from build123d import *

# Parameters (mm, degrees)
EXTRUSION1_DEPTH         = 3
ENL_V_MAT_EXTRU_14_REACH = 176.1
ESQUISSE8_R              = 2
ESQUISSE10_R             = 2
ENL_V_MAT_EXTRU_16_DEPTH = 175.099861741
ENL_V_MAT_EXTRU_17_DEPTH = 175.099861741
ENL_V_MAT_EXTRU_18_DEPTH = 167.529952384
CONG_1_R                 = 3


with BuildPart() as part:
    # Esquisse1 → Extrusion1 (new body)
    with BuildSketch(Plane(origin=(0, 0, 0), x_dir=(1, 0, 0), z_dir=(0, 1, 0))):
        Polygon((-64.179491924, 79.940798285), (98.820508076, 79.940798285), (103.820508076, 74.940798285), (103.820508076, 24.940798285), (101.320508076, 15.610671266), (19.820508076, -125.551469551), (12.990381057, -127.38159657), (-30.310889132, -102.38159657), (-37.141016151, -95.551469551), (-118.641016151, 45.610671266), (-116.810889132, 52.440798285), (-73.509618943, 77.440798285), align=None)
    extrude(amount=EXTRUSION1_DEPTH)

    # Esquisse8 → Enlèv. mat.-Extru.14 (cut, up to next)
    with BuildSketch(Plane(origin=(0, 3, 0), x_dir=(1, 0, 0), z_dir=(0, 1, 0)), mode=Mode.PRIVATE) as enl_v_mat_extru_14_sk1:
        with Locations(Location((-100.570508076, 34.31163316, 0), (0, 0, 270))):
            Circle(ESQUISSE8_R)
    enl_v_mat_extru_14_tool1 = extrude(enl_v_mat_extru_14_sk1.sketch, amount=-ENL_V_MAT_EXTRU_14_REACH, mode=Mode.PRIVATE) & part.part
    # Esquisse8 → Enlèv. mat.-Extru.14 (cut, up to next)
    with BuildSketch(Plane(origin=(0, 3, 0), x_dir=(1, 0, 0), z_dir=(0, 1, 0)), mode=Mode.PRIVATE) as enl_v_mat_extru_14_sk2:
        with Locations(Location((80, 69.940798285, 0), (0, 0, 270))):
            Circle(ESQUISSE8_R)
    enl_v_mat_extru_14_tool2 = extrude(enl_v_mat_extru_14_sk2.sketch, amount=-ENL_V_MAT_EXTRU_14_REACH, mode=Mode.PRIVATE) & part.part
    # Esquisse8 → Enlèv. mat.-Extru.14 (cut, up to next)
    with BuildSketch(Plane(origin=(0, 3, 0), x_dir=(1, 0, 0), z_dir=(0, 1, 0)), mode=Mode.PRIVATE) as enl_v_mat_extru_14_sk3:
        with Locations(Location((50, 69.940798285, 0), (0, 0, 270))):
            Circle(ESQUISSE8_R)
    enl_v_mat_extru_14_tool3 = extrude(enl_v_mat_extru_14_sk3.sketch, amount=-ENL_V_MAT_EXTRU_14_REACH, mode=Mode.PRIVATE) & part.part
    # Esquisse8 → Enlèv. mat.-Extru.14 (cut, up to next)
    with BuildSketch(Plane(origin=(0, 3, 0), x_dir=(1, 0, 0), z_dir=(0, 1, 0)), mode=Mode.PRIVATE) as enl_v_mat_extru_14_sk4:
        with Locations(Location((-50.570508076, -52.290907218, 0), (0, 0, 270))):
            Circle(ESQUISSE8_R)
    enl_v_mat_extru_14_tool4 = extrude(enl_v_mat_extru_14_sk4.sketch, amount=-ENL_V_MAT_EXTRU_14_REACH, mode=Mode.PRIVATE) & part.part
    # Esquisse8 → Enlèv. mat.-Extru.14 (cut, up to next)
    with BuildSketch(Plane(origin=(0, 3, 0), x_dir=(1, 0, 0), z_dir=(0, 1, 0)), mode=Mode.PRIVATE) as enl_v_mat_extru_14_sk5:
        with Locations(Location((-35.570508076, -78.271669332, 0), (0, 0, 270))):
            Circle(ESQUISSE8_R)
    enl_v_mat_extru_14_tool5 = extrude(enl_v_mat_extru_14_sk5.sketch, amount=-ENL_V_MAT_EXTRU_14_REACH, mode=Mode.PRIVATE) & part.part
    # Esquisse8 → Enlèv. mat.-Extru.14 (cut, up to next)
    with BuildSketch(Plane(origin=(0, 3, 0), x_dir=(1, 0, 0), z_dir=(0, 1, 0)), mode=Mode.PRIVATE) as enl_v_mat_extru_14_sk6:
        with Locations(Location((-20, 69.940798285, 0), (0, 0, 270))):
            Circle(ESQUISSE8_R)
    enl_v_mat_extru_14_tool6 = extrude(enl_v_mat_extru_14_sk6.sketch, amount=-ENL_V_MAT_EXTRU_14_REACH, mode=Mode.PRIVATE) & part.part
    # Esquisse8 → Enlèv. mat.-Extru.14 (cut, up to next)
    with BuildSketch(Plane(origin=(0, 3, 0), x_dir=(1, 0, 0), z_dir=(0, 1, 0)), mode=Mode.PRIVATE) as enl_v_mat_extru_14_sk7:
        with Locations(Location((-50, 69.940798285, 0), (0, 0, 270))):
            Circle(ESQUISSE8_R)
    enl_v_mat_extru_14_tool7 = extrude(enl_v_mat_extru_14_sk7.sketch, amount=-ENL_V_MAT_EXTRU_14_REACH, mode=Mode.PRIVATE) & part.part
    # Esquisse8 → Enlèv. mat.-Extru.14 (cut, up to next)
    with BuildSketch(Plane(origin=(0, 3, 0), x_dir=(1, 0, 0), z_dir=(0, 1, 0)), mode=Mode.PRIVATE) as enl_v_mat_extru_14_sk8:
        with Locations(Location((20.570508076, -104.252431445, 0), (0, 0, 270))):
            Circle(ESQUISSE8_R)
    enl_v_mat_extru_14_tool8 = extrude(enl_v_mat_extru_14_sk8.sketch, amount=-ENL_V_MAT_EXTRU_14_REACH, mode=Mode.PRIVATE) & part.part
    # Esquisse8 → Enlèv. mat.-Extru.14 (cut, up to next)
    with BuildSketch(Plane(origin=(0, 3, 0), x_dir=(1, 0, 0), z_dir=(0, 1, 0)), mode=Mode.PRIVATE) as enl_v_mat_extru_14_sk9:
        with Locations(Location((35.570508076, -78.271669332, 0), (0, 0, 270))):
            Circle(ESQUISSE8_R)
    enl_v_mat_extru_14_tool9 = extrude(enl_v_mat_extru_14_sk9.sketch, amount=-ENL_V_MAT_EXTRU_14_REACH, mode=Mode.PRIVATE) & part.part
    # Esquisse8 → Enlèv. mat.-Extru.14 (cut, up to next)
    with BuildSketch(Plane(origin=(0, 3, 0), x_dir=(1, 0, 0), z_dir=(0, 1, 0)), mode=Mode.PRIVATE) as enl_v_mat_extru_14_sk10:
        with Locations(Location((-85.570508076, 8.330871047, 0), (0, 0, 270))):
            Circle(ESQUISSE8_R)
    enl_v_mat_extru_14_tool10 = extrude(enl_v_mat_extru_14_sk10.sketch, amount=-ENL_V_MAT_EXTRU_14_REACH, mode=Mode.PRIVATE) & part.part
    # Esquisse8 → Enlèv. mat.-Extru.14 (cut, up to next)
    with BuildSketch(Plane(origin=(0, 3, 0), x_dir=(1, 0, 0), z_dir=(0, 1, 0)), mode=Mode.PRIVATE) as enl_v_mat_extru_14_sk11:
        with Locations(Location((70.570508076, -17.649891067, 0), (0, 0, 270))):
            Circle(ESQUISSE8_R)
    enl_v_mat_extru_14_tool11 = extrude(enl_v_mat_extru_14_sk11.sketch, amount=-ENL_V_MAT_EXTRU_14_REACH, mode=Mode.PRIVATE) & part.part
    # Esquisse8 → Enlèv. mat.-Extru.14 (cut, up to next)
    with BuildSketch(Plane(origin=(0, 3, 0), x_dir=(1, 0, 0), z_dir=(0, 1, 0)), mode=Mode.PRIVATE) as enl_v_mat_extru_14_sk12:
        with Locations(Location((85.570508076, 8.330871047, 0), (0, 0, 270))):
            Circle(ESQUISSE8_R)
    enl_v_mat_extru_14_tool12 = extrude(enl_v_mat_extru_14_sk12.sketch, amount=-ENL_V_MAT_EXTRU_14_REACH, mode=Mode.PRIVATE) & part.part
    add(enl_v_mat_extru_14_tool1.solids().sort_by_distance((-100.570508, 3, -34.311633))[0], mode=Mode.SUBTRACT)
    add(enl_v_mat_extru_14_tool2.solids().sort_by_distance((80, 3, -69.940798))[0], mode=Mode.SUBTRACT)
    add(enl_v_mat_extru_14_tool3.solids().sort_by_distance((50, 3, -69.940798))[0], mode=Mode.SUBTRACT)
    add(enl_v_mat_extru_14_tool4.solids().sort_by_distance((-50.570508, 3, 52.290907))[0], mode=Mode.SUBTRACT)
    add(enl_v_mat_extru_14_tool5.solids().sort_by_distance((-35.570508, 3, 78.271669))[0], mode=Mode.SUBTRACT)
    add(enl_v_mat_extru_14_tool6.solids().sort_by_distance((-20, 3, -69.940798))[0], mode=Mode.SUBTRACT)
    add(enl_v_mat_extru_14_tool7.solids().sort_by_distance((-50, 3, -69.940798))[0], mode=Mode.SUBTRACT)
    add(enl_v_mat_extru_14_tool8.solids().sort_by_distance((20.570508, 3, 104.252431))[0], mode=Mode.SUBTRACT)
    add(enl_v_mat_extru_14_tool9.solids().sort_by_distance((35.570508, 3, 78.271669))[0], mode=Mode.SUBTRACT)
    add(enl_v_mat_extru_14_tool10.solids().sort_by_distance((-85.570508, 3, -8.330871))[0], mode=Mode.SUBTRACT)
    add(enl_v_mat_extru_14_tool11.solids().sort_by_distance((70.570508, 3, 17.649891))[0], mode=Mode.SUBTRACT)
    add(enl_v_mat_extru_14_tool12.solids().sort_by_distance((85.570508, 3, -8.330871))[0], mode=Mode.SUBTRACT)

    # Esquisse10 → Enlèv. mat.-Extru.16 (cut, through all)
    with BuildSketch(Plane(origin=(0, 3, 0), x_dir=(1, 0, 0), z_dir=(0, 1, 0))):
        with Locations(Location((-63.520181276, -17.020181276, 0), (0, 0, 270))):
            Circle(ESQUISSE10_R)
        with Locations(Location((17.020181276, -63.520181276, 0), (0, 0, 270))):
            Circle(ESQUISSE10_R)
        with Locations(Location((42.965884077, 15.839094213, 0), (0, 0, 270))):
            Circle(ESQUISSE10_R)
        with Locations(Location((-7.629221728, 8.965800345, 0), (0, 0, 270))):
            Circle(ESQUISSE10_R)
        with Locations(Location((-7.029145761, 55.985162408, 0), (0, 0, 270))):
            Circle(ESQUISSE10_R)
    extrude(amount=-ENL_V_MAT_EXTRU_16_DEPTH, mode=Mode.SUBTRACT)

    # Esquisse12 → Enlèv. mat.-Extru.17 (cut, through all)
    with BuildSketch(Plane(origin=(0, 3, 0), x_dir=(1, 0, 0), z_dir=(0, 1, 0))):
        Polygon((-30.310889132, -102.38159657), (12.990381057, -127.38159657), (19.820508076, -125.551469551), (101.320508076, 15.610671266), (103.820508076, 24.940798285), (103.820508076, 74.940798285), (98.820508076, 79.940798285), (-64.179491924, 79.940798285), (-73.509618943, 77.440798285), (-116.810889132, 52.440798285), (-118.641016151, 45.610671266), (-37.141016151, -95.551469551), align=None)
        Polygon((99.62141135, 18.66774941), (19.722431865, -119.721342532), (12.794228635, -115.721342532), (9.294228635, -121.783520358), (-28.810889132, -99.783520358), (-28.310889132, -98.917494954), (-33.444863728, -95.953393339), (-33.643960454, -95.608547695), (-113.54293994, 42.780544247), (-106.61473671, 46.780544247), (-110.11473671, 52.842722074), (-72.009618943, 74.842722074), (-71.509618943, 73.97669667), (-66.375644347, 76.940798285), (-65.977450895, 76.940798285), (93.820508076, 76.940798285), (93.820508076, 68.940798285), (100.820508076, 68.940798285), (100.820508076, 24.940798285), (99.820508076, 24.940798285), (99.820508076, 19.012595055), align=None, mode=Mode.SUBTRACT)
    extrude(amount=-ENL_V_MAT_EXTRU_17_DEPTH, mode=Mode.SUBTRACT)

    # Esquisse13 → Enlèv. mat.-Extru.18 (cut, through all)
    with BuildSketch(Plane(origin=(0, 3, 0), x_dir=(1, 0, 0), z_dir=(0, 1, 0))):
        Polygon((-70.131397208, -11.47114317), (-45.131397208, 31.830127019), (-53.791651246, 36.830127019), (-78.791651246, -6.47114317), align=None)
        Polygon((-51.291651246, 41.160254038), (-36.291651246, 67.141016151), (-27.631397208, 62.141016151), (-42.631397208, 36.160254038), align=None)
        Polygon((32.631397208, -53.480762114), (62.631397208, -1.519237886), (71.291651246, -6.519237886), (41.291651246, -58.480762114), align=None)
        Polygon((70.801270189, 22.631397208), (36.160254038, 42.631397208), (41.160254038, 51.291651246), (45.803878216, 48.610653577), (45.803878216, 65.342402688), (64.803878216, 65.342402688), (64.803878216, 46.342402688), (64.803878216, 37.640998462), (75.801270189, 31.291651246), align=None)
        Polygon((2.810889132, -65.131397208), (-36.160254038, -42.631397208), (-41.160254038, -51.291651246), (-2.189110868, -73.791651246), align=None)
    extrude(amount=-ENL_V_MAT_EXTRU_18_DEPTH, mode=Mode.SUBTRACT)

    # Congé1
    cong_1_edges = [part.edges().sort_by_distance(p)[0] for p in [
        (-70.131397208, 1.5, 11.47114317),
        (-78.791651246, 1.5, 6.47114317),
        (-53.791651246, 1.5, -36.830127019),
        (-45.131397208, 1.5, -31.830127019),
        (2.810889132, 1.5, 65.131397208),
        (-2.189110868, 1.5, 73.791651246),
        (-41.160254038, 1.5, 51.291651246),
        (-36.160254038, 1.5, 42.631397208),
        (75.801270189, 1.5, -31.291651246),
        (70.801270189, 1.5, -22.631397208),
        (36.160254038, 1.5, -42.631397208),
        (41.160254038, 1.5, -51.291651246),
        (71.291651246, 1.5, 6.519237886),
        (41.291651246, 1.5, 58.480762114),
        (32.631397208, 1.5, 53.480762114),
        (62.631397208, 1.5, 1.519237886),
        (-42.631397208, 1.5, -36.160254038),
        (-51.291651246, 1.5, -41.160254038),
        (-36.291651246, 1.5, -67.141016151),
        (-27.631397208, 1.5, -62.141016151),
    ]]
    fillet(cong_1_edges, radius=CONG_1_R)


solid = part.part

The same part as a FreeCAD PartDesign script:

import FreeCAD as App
import Part
import Sketcher

V = App.Vector
Q = App.Units.Quantity


def edges_at(feature, points):
    """Names of the edges that pass closest to the given points."""
    edges = feature.Shape.Edges
    near = lambda p: min(range(len(edges)), key=lambda i: edges[i].distToShape(Part.Vertex(*p))[0])
    return sorted({f"Edge{near(p) + 1}" for p in points})

doc = App.newDocument("Part")
body = doc.addObject("PartDesign::Body", "Body")

# Sketch on XZ plane
sketch1 = doc.addObject("Sketcher::SketchObject", "Sketch")
body.addObject(sketch1)
sketch1.AttachmentSupport = (doc.XZ_Plane, [""])
sketch1.MapMode = "FlatFace"
sketch1.addGeometry([
    Part.LineSegment(V(99, -80, 0), V(-64, -80, 0)),  # 0
    Part.LineSegment(V(-64, -80, 0), V(-74, -77, 0)),  # 1
    Part.LineSegment(V(-74, -77, 0), V(-117, -52, 0)),  # 2
    Part.LineSegment(V(-117, -52, 0), V(-119, -46, 0)),  # 3
    Part.LineSegment(V(-119, -46, 0), V(-37, 96, 0)),  # 4
    Part.LineSegment(V(-37, 96, 0), V(-30, 102, 0)),  # 5
    Part.LineSegment(V(-30, 102, 0), V(13, 127, 0)),  # 6
    Part.LineSegment(V(13, 127, 0), V(20, 126, 0)),  # 7
    Part.LineSegment(V(20, 126, 0), V(101, -16, 0)),  # 8
    Part.LineSegment(V(101, -16, 0), V(104, -25, 0)),  # 9
    Part.LineSegment(V(104, -25, 0), V(104, -75, 0)),  # 10
    Part.LineSegment(V(104, -75, 0), V(99, -80, 0)),  # 11
], False)
sketch1.addConstraint([
    Sketcher.Constraint("Coincident", 0, 2, 1, 1),
    Sketcher.Constraint("Coincident", 1, 2, 2, 1),
    Sketcher.Constraint("Coincident", 2, 2, 3, 1),
    Sketcher.Constraint("Coincident", 3, 2, 4, 1),
    Sketcher.Constraint("Coincident", 4, 2, 5, 1),
    Sketcher.Constraint("Coincident", 5, 2, 6, 1),
    Sketcher.Constraint("Coincident", 6, 2, 7, 1),
    Sketcher.Constraint("Coincident", 7, 2, 8, 1),
    Sketcher.Constraint("Coincident", 8, 2, 9, 1),
    Sketcher.Constraint("Coincident", 9, 2, 10, 1),
    Sketcher.Constraint("Coincident", 10, 2, 11, 1),
    Sketcher.Constraint("Coincident", 11, 2, 0, 1),
    Sketcher.Constraint("Horizontal", 0),
    Sketcher.Constraint("Vertical", 10),
    Sketcher.Constraint("Perpendicular", 2, 4),
    Sketcher.Constraint("Parallel", 1, 7),
    Sketcher.Constraint("Perpendicular", 6, 8),
    Sketcher.Constraint("Parallel", 3, 9),
    Sketcher.Constraint("Parallel", 5, 11),
    Sketcher.Constraint("Equal", 1, 5),
    Sketcher.Constraint("Equal", 2, 6),
    Sketcher.Constraint("Equal", 3, 7),
    Sketcher.Constraint("Equal", 4, 8),
    Sketcher.Constraint("Equal", 5, 9),
    Sketcher.Constraint("Equal", 7, 11),
    Sketcher.Constraint("DistanceX", 0, 2, 0, 1, Q("163 mm")),
    Sketcher.Constraint("DistanceY", 10, 2, 10, 1, Q("50 mm")),
    Sketcher.Constraint("Angle", 1, Q("165 deg")),
    Sketcher.Constraint("Angle", 2, Q("150 deg")),
    Sketcher.Constraint("Angle", 3, Q("105 deg")),
    Sketcher.Constraint("Angle", 5, Q("45 deg")),
    Sketcher.Constraint("Angle", 6, Q("30 deg")),
    Sketcher.Constraint("DistanceY", 4, 2, 7, 2, Q("30 mm")),
    Sketcher.Constraint("DistanceX", 0, 2, 7, 2, Q("84 mm")),
    Sketcher.Constraint("DistanceY", 0, 2, -1, 1, Q("79.940798 mm")),
    Sketcher.Constraint("DistanceX", 0, 2, -1, 1, Q("64.179492 mm")),
])
pad1 = doc.addObject("PartDesign::Pad", "Pad")
body.addObject(pad1)
pad1.Profile = sketch1
pad1.Length = 3
pad1.Reversed = True

# Sketch on XZ plane
sketch2 = doc.addObject("Sketcher::SketchObject", "Sketch001")
body.addObject(sketch2)
sketch2.AttachmentSupport = (doc.XZ_Plane, [""])
sketch2.MapMode = "FlatFace"
sketch2.AttachmentOffset = App.Placement(V(0, 0, -3), App.Rotation())
sketch2.addGeometry(Part.Circle(V(-100.6, -34.3, 0), V(0, 0, 1), 2), False)
sketch2.addConstraint([
    Sketcher.Constraint("Diameter", 0, Q("4 mm")),
    Sketcher.Constraint("DistanceX", 0, 3, -1, 1, Q("100.570508 mm")),
    Sketcher.Constraint("DistanceY", 0, 3, -1, 1, Q("34.311633 mm")),
])
pocket1 = doc.addObject("PartDesign::Pocket", "Pocket")
body.addObject(pocket1)
pocket1.Profile = sketch2
pocket1.Type = "UpToFirst"
pocket1.Reversed = True

# Sketch on XZ plane
sketch3 = doc.addObject("Sketcher::SketchObject", "Sketch002")
body.addObject(sketch3)
sketch3.AttachmentSupport = (doc.XZ_Plane, [""])
sketch3.MapMode = "FlatFace"
sketch3.AttachmentOffset = App.Placement(V(0, 0, -3), App.Rotation())
sketch3.addGeometry(Part.Circle(V(80, -69.9, 0), V(0, 0, 1), 2), False)
sketch3.addConstraint([
    Sketcher.Constraint("Diameter", 0, Q("4 mm")),
    Sketcher.Constraint("DistanceX", -1, 1, 0, 3, Q("80 mm")),
    Sketcher.Constraint("DistanceY", 0, 3, -1, 1, Q("69.940798 mm")),
])
pocket2 = doc.addObject("PartDesign::Pocket", "Pocket001")
body.addObject(pocket2)
pocket2.Profile = sketch3
pocket2.Type = "UpToFirst"
pocket2.Reversed = True

# Sketch on XZ plane
sketch4 = doc.addObject("Sketcher::SketchObject", "Sketch003")
body.addObject(sketch4)
sketch4.AttachmentSupport = (doc.XZ_Plane, [""])
sketch4.MapMode = "FlatFace"
sketch4.AttachmentOffset = App.Placement(V(0, 0, -3), App.Rotation())
sketch4.addGeometry(Part.Circle(V(50, -69.9, 0), V(0, 0, 1), 2), False)
sketch4.addConstraint([
    Sketcher.Constraint("Diameter", 0, Q("4 mm")),
    Sketcher.Constraint("DistanceX", -1, 1, 0, 3, Q("50 mm")),
    Sketcher.Constraint("DistanceY", 0, 3, -1, 1, Q("69.940798 mm")),
])
pocket3 = doc.addObject("PartDesign::Pocket", "Pocket002")
body.addObject(pocket3)
pocket3.Profile = sketch4
pocket3.Type = "UpToFirst"
pocket3.Reversed = True

# Sketch on XZ plane
sketch5 = doc.addObject("Sketcher::SketchObject", "Sketch004")
body.addObject(sketch5)
sketch5.AttachmentSupport = (doc.XZ_Plane, [""])
sketch5.MapMode = "FlatFace"
sketch5.AttachmentOffset = App.Placement(V(0, 0, -3), App.Rotation())
sketch5.addGeometry(Part.Circle(V(-50.6, 52.3, 0), V(0, 0, 1), 2), False)
sketch5.addConstraint([
    Sketcher.Constraint("Diameter", 0, Q("4 mm")),
    Sketcher.Constraint("DistanceX", 0, 3, -1, 1, Q("50.570508 mm")),
    Sketcher.Constraint("DistanceY", -1, 1, 0, 3, Q("52.290907 mm")),
])
pocket4 = doc.addObject("PartDesign::Pocket", "Pocket003")
body.addObject(pocket4)
pocket4.Profile = sketch5
pocket4.Type = "UpToFirst"
pocket4.Reversed = True

# Sketch on XZ plane
sketch6 = doc.addObject("Sketcher::SketchObject", "Sketch005")
body.addObject(sketch6)
sketch6.AttachmentSupport = (doc.XZ_Plane, [""])
sketch6.MapMode = "FlatFace"
sketch6.AttachmentOffset = App.Placement(V(0, 0, -3), App.Rotation())
sketch6.addGeometry(Part.Circle(V(-35.6, 78.3, 0), V(0, 0, 1), 2), False)
sketch6.addConstraint([
    Sketcher.Constraint("Diameter", 0, Q("4 mm")),
    Sketcher.Constraint("DistanceX", 0, 3, -1, 1, Q("35.570508 mm")),
    Sketcher.Constraint("DistanceY", -1, 1, 0, 3, Q("78.271669 mm")),
])
pocket5 = doc.addObject("PartDesign::Pocket", "Pocket004")
body.addObject(pocket5)
pocket5.Profile = sketch6
pocket5.Type = "UpToFirst"
pocket5.Reversed = True

# Sketch on XZ plane
sketch7 = doc.addObject("Sketcher::SketchObject", "Sketch006")
body.addObject(sketch7)
sketch7.AttachmentSupport = (doc.XZ_Plane, [""])
sketch7.MapMode = "FlatFace"
sketch7.AttachmentOffset = App.Placement(V(0, 0, -3), App.Rotation())
sketch7.addGeometry(Part.Circle(V(-20, -69.9, 0), V(0, 0, 1), 2), False)
sketch7.addConstraint([
    Sketcher.Constraint("Diameter", 0, Q("4 mm")),
    Sketcher.Constraint("DistanceX", 0, 3, -1, 1, Q("20 mm")),
    Sketcher.Constraint("DistanceY", 0, 3, -1, 1, Q("69.940798 mm")),
])
pocket6 = doc.addObject("PartDesign::Pocket", "Pocket005")
body.addObject(pocket6)
pocket6.Profile = sketch7
pocket6.Type = "UpToFirst"
pocket6.Reversed = True

# Sketch on XZ plane
sketch8 = doc.addObject("Sketcher::SketchObject", "Sketch007")
body.addObject(sketch8)
sketch8.AttachmentSupport = (doc.XZ_Plane, [""])
sketch8.MapMode = "FlatFace"
sketch8.AttachmentOffset = App.Placement(V(0, 0, -3), App.Rotation())
sketch8.addGeometry(Part.Circle(V(-50, -69.9, 0), V(0, 0, 1), 2), False)
sketch8.addConstraint([
    Sketcher.Constraint("Diameter", 0, Q("4 mm")),
    Sketcher.Constraint("DistanceX", 0, 3, -1, 1, Q("50 mm")),
    Sketcher.Constraint("DistanceY", 0, 3, -1, 1, Q("69.940798 mm")),
])
pocket7 = doc.addObject("PartDesign::Pocket", "Pocket006")
body.addObject(pocket7)
pocket7.Profile = sketch8
pocket7.Type = "UpToFirst"
pocket7.Reversed = True

# Sketch on XZ plane
sketch9 = doc.addObject("Sketcher::SketchObject", "Sketch008")
body.addObject(sketch9)
sketch9.AttachmentSupport = (doc.XZ_Plane, [""])
sketch9.MapMode = "FlatFace"
sketch9.AttachmentOffset = App.Placement(V(0, 0, -3), App.Rotation())
sketch9.addGeometry(Part.Circle(V(20.6, 104.3, 0), V(0, 0, 1), 2), False)
sketch9.addConstraint([
    Sketcher.Constraint("Diameter", 0, Q("4 mm")),
    Sketcher.Constraint("DistanceX", -1, 1, 0, 3, Q("20.570508 mm")),
    Sketcher.Constraint("DistanceY", -1, 1, 0, 3, Q("104.252431 mm")),
])
pocket8 = doc.addObject("PartDesign::Pocket", "Pocket007")
body.addObject(pocket8)
pocket8.Profile = sketch9
pocket8.Type = "UpToFirst"
pocket8.Reversed = True

# Sketch on XZ plane
sketch10 = doc.addObject("Sketcher::SketchObject", "Sketch009")
body.addObject(sketch10)
sketch10.AttachmentSupport = (doc.XZ_Plane, [""])
sketch10.MapMode = "FlatFace"
sketch10.AttachmentOffset = App.Placement(V(0, 0, -3), App.Rotation())
sketch10.addGeometry(Part.Circle(V(35.6, 78.3, 0), V(0, 0, 1), 2), False)
sketch10.addConstraint([
    Sketcher.Constraint("Diameter", 0, Q("4 mm")),
    Sketcher.Constraint("DistanceX", -1, 1, 0, 3, Q("35.570508 mm")),
    Sketcher.Constraint("DistanceY", -1, 1, 0, 3, Q("78.271669 mm")),
])
pocket9 = doc.addObject("PartDesign::Pocket", "Pocket008")
body.addObject(pocket9)
pocket9.Profile = sketch10
pocket9.Type = "UpToFirst"
pocket9.Reversed = True

# Sketch on XZ plane
sketch11 = doc.addObject("Sketcher::SketchObject", "Sketch010")
body.addObject(sketch11)
sketch11.AttachmentSupport = (doc.XZ_Plane, [""])
sketch11.MapMode = "FlatFace"
sketch11.AttachmentOffset = App.Placement(V(0, 0, -3), App.Rotation())
sketch11.addGeometry(Part.Circle(V(-85.6, -8.3, 0), V(0, 0, 1), 2), False)
sketch11.addConstraint([
    Sketcher.Constraint("Diameter", 0, Q("4 mm")),
    Sketcher.Constraint("DistanceX", 0, 3, -1, 1, Q("85.570508 mm")),
    Sketcher.Constraint("DistanceY", 0, 3, -1, 1, Q("8.330871 mm")),
])
pocket10 = doc.addObject("PartDesign::Pocket", "Pocket009")
body.addObject(pocket10)
pocket10.Profile = sketch11
pocket10.Type = "UpToFirst"
pocket10.Reversed = True

# Sketch on XZ plane
sketch12 = doc.addObject("Sketcher::SketchObject", "Sketch011")
body.addObject(sketch12)
sketch12.AttachmentSupport = (doc.XZ_Plane, [""])
sketch12.MapMode = "FlatFace"
sketch12.AttachmentOffset = App.Placement(V(0, 0, -3), App.Rotation())
sketch12.addGeometry(Part.Circle(V(70.6, 17.6, 0), V(0, 0, 1), 2), False)
sketch12.addConstraint([
    Sketcher.Constraint("Diameter", 0, Q("4 mm")),
    Sketcher.Constraint("DistanceX", -1, 1, 0, 3, Q("70.570508 mm")),
    Sketcher.Constraint("DistanceY", -1, 1, 0, 3, Q("17.649891 mm")),
])
pocket11 = doc.addObject("PartDesign::Pocket", "Pocket010")
body.addObject(pocket11)
pocket11.Profile = sketch12
pocket11.Type = "UpToFirst"
pocket11.Reversed = True

# Sketch on XZ plane
sketch13 = doc.addObject("Sketcher::SketchObject", "Sketch012")
body.addObject(sketch13)
sketch13.AttachmentSupport = (doc.XZ_Plane, [""])
sketch13.MapMode = "FlatFace"
sketch13.AttachmentOffset = App.Placement(V(0, 0, -3), App.Rotation())
sketch13.addGeometry(Part.Circle(V(85.6, -8.3, 0), V(0, 0, 1), 2), False)
sketch13.addConstraint([
    Sketcher.Constraint("Diameter", 0, Q("4 mm")),
    Sketcher.Constraint("DistanceX", -1, 1, 0, 3, Q("85.570508 mm")),
    Sketcher.Constraint("DistanceY", 0, 3, -1, 1, Q("8.330871 mm")),
])
pocket12 = doc.addObject("PartDesign::Pocket", "Pocket011")
body.addObject(pocket12)
pocket12.Profile = sketch13
pocket12.Type = "UpToFirst"
pocket12.Reversed = True

# Sketch on XZ plane
sketch14 = doc.addObject("Sketcher::SketchObject", "Sketch013")
body.addObject(sketch14)
sketch14.AttachmentSupport = (doc.XZ_Plane, [""])
sketch14.MapMode = "FlatFace"
sketch14.AttachmentOffset = App.Placement(V(0, 0, -3), App.Rotation())
sketch14.addGeometry([
    Part.Circle(V(-63.5, 17, 0), V(0, 0, 1), 2),  # 0
    Part.Circle(V(17, 63.5, 0), V(0, 0, 1), 2),  # 1
    Part.Circle(V(43, -15.8, 0), V(0, 0, 1), 2),  # 2
    Part.Circle(V(-7.6, -9, 0), V(0, 0, 1), 2),  # 3
    Part.Circle(V(-7, -56, 0), V(0, 0, 1), 2),  # 4
], False)
sketch14.addConstraint([
    Sketcher.Constraint("Equal", 0, 1),
    Sketcher.Constraint("Equal", 1, 2),
    Sketcher.Constraint("Equal", 2, 3),
    Sketcher.Constraint("Equal", 3, 4),
    Sketcher.Constraint("Diameter", 0, Q("4 mm")),
    Sketcher.Constraint("DistanceY", 0, 3, 1, 3, Q("46.5 mm")),
    Sketcher.Constraint("DistanceY", 3, 3, -1, 1, Q("8.9658 mm")),
    Sketcher.Constraint("DistanceX", 0, 3, -1, 1, Q("63.520181 mm")),
    Sketcher.Constraint("DistanceY", -1, 1, 0, 3, Q("17.020181 mm")),
    Sketcher.Constraint("DistanceX", -1, 1, 1, 3, Q("17.020181 mm")),
    Sketcher.Constraint("DistanceX", 3, 3, -1, 1, Q("7.629222 mm")),
    Sketcher.Constraint("DistanceX", 4, 3, 2, 3, Q("49.99503 mm")),
    Sketcher.Constraint("DistanceY", 4, 3, 2, 3, Q("40.146068 mm")),
    Sketcher.Constraint("DistanceX", -1, 1, 2, 3, Q("42.965884 mm")),
    Sketcher.Constraint("DistanceY", 2, 3, -1, 1, Q("15.839094 mm")),
])
pocket13 = doc.addObject("PartDesign::Pocket", "Pocket012")
body.addObject(pocket13)
pocket13.Profile = sketch14
pocket13.Type = "ThroughAll"
pocket13.Reversed = True

# Sketch on XZ plane
sketch15 = doc.addObject("Sketcher::SketchObject", "Sketch014")
body.addObject(sketch15)
sketch15.AttachmentSupport = (doc.XZ_Plane, [""])
sketch15.MapMode = "FlatFace"
sketch15.AttachmentOffset = App.Placement(V(0, 0, -3), App.Rotation())
sketch15.addGeometry([
    Part.LineSegment(V(-30.31, 102.38, 0), V(12.99, 127.38, 0)),  # 0
    Part.LineSegment(V(12.99, 127.38, 0), V(19.82, 125.55, 0)),  # 1
    Part.LineSegment(V(19.82, 125.55, 0), V(101.32, -15.61, 0)),  # 2
    Part.LineSegment(V(101.32, -15.61, 0), V(103.82, -24.94, 0)),  # 3
    Part.LineSegment(V(103.82, -24.94, 0), V(103.82, -74.94, 0)),  # 4
    Part.LineSegment(V(103.82, -74.94, 0), V(98.82, -79.94, 0)),  # 5
    Part.LineSegment(V(98.82, -79.94, 0), V(-64.18, -79.94, 0)),  # 6
    Part.LineSegment(V(-64.18, -79.94, 0), V(-73.51, -77.44, 0)),  # 7
    Part.LineSegment(V(-73.51, -77.44, 0), V(-116.81, -52.44, 0)),  # 8
    Part.LineSegment(V(-116.81, -52.44, 0), V(-118.64, -45.61, 0)),  # 9
    Part.LineSegment(V(-118.64, -45.61, 0), V(-37.14, 95.55, 0)),  # 10
    Part.LineSegment(V(-37.14, 95.55, 0), V(-30.31, 102.38, 0)),  # 11
    Part.LineSegment(V(99.82, -19.01, 0), V(99.62, -18.67, 0)),  # 12
    Part.LineSegment(V(99.62, -18.67, 0), V(19.72, 119.72, 0)),  # 13
    Part.LineSegment(V(19.72, 119.72, 0), V(12.79, 115.72, 0)),  # 14
    Part.LineSegment(V(12.79, 115.72, 0), V(9.29, 121.78, 0)),  # 15
    Part.LineSegment(V(9.29, 121.78, 0), V(-28.81, 99.78, 0)),  # 16
    Part.LineSegment(V(-28.81, 99.78, 0), V(-28.31, 98.92, 0)),  # 17
    Part.LineSegment(V(-28.31, 98.92, 0), V(-33.44, 95.95, 0)),  # 18
    Part.LineSegment(V(-33.44, 95.95, 0), V(-33.64, 95.61, 0)),  # 19
    Part.LineSegment(V(-33.64, 95.61, 0), V(-113.54, -42.78, 0)),  # 20
    Part.LineSegment(V(-113.54, -42.78, 0), V(-106.61, -46.78, 0)),  # 21
    Part.LineSegment(V(-106.61, -46.78, 0), V(-110.11, -52.84, 0)),  # 22
    Part.LineSegment(V(-110.11, -52.84, 0), V(-72.01, -74.84, 0)),  # 23
    Part.LineSegment(V(-72.01, -74.84, 0), V(-71.51, -73.98, 0)),  # 24
    Part.LineSegment(V(-71.51, -73.98, 0), V(-66.38, -76.94, 0)),  # 25
    Part.LineSegment(V(-66.38, -76.94, 0), V(93.82, -76.94, 0)),  # 26
    Part.LineSegment(V(93.82, -76.94, 0), V(93.82, -68.94, 0)),  # 27
    Part.LineSegment(V(93.82, -68.94, 0), V(100.82, -68.94, 0)),  # 28
    Part.LineSegment(V(100.82, -68.94, 0), V(100.82, -24.94, 0)),  # 29
    Part.LineSegment(V(100.82, -24.94, 0), V(99.82, -24.94, 0)),  # 30
    Part.LineSegment(V(99.82, -24.94, 0), V(99.82, -19.01, 0)),  # 31
], False)
sketch15.addConstraint([
    Sketcher.Constraint("Coincident", 0, 2, 1, 1),
    Sketcher.Constraint("Coincident", 1, 2, 2, 1),
    Sketcher.Constraint("Coincident", 2, 2, 3, 1),
    Sketcher.Constraint("Coincident", 3, 2, 4, 1),
    Sketcher.Constraint("Coincident", 4, 2, 5, 1),
    Sketcher.Constraint("Coincident", 5, 2, 6, 1),
    Sketcher.Constraint("Coincident", 6, 2, 7, 1),
    Sketcher.Constraint("Coincident", 7, 2, 8, 1),
    Sketcher.Constraint("Coincident", 8, 2, 9, 1),
    Sketcher.Constraint("Coincident", 9, 2, 10, 1),
    Sketcher.Constraint("Coincident", 10, 2, 11, 1),
    Sketcher.Constraint("Coincident", 11, 2, 0, 1),
    Sketcher.Constraint("Coincident", 12, 2, 13, 1),
    Sketcher.Constraint("Coincident", 13, 2, 14, 1),
    Sketcher.Constraint("Coincident", 14, 2, 15, 1),
    Sketcher.Constraint("Coincident", 15, 2, 16, 1),
    Sketcher.Constraint("Coincident", 16, 2, 17, 1),
    Sketcher.Constraint("Coincident", 17, 2, 18, 1),
    Sketcher.Constraint("Coincident", 18, 2, 19, 1),
    Sketcher.Constraint("Coincident", 19, 2, 20, 1),
    Sketcher.Constraint("Coincident", 20, 2, 21, 1),
    Sketcher.Constraint("Coincident", 21, 2, 22, 1),
    Sketcher.Constraint("Coincident", 22, 2, 23, 1),
    Sketcher.Constraint("Coincident", 23, 2, 24, 1),
    Sketcher.Constraint("Coincident", 24, 2, 25, 1),
    Sketcher.Constraint("Coincident", 25, 2, 26, 1),
    Sketcher.Constraint("Coincident", 26, 2, 27, 1),
    Sketcher.Constraint("Coincident", 27, 2, 28, 1),
    Sketcher.Constraint("Coincident", 28, 2, 29, 1),
    Sketcher.Constraint("Coincident", 29, 2, 30, 1),
    Sketcher.Constraint("Coincident", 30, 2, 31, 1),
    Sketcher.Constraint("Coincident", 31, 2, 12, 1),
    Sketcher.Constraint("Vertical", 4),
    Sketcher.Constraint("Horizontal", 6),
    Sketcher.Constraint("Horizontal", 26),
    Sketcher.Constraint("Vertical", 27),
    Sketcher.Constraint("Horizontal", 28),
    Sketcher.Constraint("Vertical", 29),
    Sketcher.Constraint("Horizontal", 30),
    Sketcher.Constraint("Vertical", 31),
    Sketcher.Constraint("Perpendicular", 0, 2),
    Sketcher.Constraint("Parallel", 1, 7),
    Sketcher.Constraint("Parallel", 3, 9),
    Sketcher.Constraint("Perpendicular", 8, 10),
    Sketcher.Constraint("Parallel", 5, 11),
    Sketcher.Constraint("Parallel", 2, 12),
    Sketcher.Constraint("Parallel", 12, 13),
    Sketcher.Constraint("Perpendicular", 13, 14),
    Sketcher.Constraint("Perpendicular", 14, 15),
    Sketcher.Constraint("Perpendicular", 15, 16),
    Sketcher.Constraint("Perpendicular", 16, 17),
    Sketcher.Constraint("Perpendicular", 17, 18),
    Sketcher.Constraint("Parallel", 10, 19),
    Sketcher.Constraint("Parallel", 19, 20),
    Sketcher.Constraint("Perpendicular", 20, 21),
    Sketcher.Constraint("Perpendicular", 21, 22),
    Sketcher.Constraint("Perpendicular", 22, 23),
    Sketcher.Constraint("Perpendicular", 23, 24),
    Sketcher.Constraint("Perpendicular", 24, 25),
    Sketcher.Constraint("Horizontal", 3, 2, 29, 2),
    Sketcher.Constraint("Equal", 1, 5),
    Sketcher.Constraint("Equal", 3, 7),
    Sketcher.Constraint("Equal", 0, 8),
    Sketcher.Constraint("Equal", 5, 9),
    Sketcher.Constraint("Equal", 2, 10),
    Sketcher.Constraint("Equal", 7, 11),
    Sketcher.Constraint("Equal", 12, 19),
    Sketcher.Constraint("Equal", 13, 20),
    Sketcher.Constraint("Equal", 14, 21),
    Sketcher.Constraint("Equal", 15, 22),
    Sketcher.Constraint("Equal", 16, 23),
    Sketcher.Constraint("Equal", 17, 24),
    Sketcher.Constraint("Equal", 18, 25),
    Sketcher.Constraint("DistanceX", 6, 2, 6, 1, Q("163 mm")),
    Sketcher.Constraint("DistanceX", 28, 1, 28, 2, Q("7 mm")),
    Sketcher.Constraint("DistanceX", 30, 2, 30, 1, Q("1 mm")),
    Sketcher.Constraint("DistanceY", 4, 2, 4, 1, Q("50 mm")),
    Sketcher.Constraint("DistanceY", 27, 1, 27, 2, Q("8 mm")),
    Sketcher.Constraint("DistanceY", 29, 1, 29, 2, Q("44 mm")),
    Sketcher.Constraint("Angle", 0, Q("30 deg")),
    Sketcher.Constraint("Angle", 1, Q("-15 deg")),
    Sketcher.Constraint("Angle", 3, Q("-75 deg")),
    Sketcher.Constraint("Angle", 5, Q("-135 deg")),
    Sketcher.Constraint("Angle", 8, Q("150 deg")),
    Sketcher.Constraint("Distance", 14, Q("8 mm")),
    Sketcher.Constraint("Distance", 15, Q("7 mm")),
    Sketcher.Constraint("Distance", 16, Q("44 mm")),
    Sketcher.Constraint("Distance", 17, Q("1 mm")),
    Sketcher.Constraint("DistanceX", 1, 2, 3, 2, Q("84 mm")),
    Sketcher.Constraint("DistanceX", 5, 2, 4, 2, Q("5 mm")),
    Sketcher.Constraint("DistanceX", 11, 2, 17, 2, Q("2 mm")),
    Sketcher.Constraint("DistanceX", 7, 2, 24, 2, Q("2 mm")),
    Sketcher.Constraint("DistanceX", 26, 2, 5, 2, Q("5 mm")),
    Sketcher.Constraint("DistanceY", 3, 2, -1, 1, Q("24.940798 mm")),
    Sketcher.Constraint("Distance", 13, Q("159.797959 mm")),
    Sketcher.Constraint("DistanceX", -1, 1, 0, 2, Q("12.990381 mm")),
])
pocket14 = doc.addObject("PartDesign::Pocket", "Pocket013")
body.addObject(pocket14)
pocket14.Profile = sketch15
pocket14.Type = "ThroughAll"
pocket14.Reversed = True

# Sketch on XZ plane
sketch16 = doc.addObject("Sketcher::SketchObject", "Sketch015")
body.addObject(sketch16)
sketch16.AttachmentSupport = (doc.XZ_Plane, [""])
sketch16.MapMode = "FlatFace"
sketch16.AttachmentOffset = App.Placement(V(0, 0, -3), App.Rotation())
sketch16.addGeometry([
    Part.LineSegment(V(-70, 11, 0), V(-45, -32, 0)),  # 0
    Part.LineSegment(V(-45, -32, 0), V(-54, -37, 0)),  # 1
    Part.LineSegment(V(-54, -37, 0), V(-79, 6, 0)),  # 2
    Part.LineSegment(V(-79, 6, 0), V(-70, 11, 0)),  # 3
    Part.LineSegment(V(-36, -67, 0), V(-51, -41, 0)),  # 4
    Part.LineSegment(V(-51, -41, 0), V(-43, -36, 0)),  # 5
    Part.LineSegment(V(-43, -36, 0), V(-28, -62, 0)),  # 6
    Part.LineSegment(V(-28, -62, 0), V(-36, -67, 0)),  # 7
    Part.LineSegment(V(63, 2, 0), V(33, 53, 0)),  # 8
    Part.LineSegment(V(33, 53, 0), V(41, 58, 0)),  # 9
    Part.LineSegment(V(41, 58, 0), V(71, 7, 0)),  # 10
    Part.LineSegment(V(71, 7, 0), V(63, 2, 0)),  # 11
    Part.LineSegment(V(36, -43, 0), V(71, -23, 0)),  # 12
    Part.LineSegment(V(71, -23, 0), V(76, -31, 0)),  # 13
    Part.LineSegment(V(76, -31, 0), V(65, -38, 0)),  # 14
    Part.LineSegment(V(65, -38, 0), V(65, -65, 0)),  # 15
    Part.LineSegment(V(65, -65, 0), V(46, -65, 0)),  # 16
    Part.LineSegment(V(46, -65, 0), V(46, -49, 0)),  # 17
    Part.LineSegment(V(46, -49, 0), V(41, -51, 0)),  # 18
    Part.LineSegment(V(41, -51, 0), V(36, -43, 0)),  # 19
    Part.LineSegment(V(3, 65, 0), V(-36, 43, 0)),  # 20
    Part.LineSegment(V(-36, 43, 0), V(-41, 51, 0)),  # 21
    Part.LineSegment(V(-41, 51, 0), V(-2, 74, 0)),  # 22
    Part.LineSegment(V(-2, 74, 0), V(3, 65, 0)),  # 23
], False)
sketch16.addConstraint([
    Sketcher.Constraint("Coincident", 0, 2, 1, 1),
    Sketcher.Constraint("Coincident", 1, 2, 2, 1),
    Sketcher.Constraint("Coincident", 2, 2, 3, 1),
    Sketcher.Constraint("Coincident", 3, 2, 0, 1),
    Sketcher.Constraint("Coincident", 4, 2, 5, 1),
    Sketcher.Constraint("Coincident", 5, 2, 6, 1),
    Sketcher.Constraint("Coincident", 6, 2, 7, 1),
    Sketcher.Constraint("Coincident", 7, 2, 4, 1),
    Sketcher.Constraint("Coincident", 8, 2, 9, 1),
    Sketcher.Constraint("Coincident", 9, 2, 10, 1),
    Sketcher.Constraint("Coincident", 10, 2, 11, 1),
    Sketcher.Constraint("Coincident", 11, 2, 8, 1),
    Sketcher.Constraint("Coincident", 12, 2, 13, 1),
    Sketcher.Constraint("Coincident", 13, 2, 14, 1),
    Sketcher.Constraint("Coincident", 14, 2, 15, 1),
    Sketcher.Constraint("Coincident", 15, 2, 16, 1),
    Sketcher.Constraint("Coincident", 16, 2, 17, 1),
    Sketcher.Constraint("Coincident", 17, 2, 18, 1),
    Sketcher.Constraint("Coincident", 18, 2, 19, 1),
    Sketcher.Constraint("Coincident", 19, 2, 12, 1),
    Sketcher.Constraint("Coincident", 20, 2, 21, 1),
    Sketcher.Constraint("Coincident", 21, 2, 22, 1),
    Sketcher.Constraint("Coincident", 22, 2, 23, 1),
    Sketcher.Constraint("Coincident", 23, 2, 20, 1),
    Sketcher.Constraint("Vertical", 15),
    Sketcher.Constraint("Horizontal", 16),
    Sketcher.Constraint("Vertical", 17),
    Sketcher.Constraint("Symmetric", 19, 2, 20, 2, -1, 1),
    Sketcher.Constraint("Symmetric", 18, 2, 21, 2, -1, 1),
    Sketcher.Constraint("Perpendicular", 0, 1),
    Sketcher.Constraint("Perpendicular", 1, 2),
    Sketcher.Constraint("Perpendicular", 2, 3),
    Sketcher.Constraint("Perpendicular", 3, 4),
    Sketcher.Constraint("Perpendicular", 4, 5),
    Sketcher.Constraint("Perpendicular", 5, 6),
    Sketcher.Constraint("Perpendicular", 6, 7),
    Sketcher.Constraint("Perpendicular", 7, 8),
    Sketcher.Constraint("Perpendicular", 8, 9),
    Sketcher.Constraint("Perpendicular", 9, 10),
    Sketcher.Constraint("Perpendicular", 10, 11),
    Sketcher.Constraint("Parallel", 11, 12),
    Sketcher.Constraint("Perpendicular", 12, 13),
    Sketcher.Constraint("Perpendicular", 13, 14),
    Sketcher.Constraint("Parallel", 14, 18),
    Sketcher.Constraint("Perpendicular", 18, 19),
    Sketcher.Constraint("Perpendicular", 19, 20),
    Sketcher.Constraint("Perpendicular", 21, 22),
    Sketcher.Constraint("Perpendicular", 22, 23),
    Sketcher.Constraint("Equal", 3, 5),
    Sketcher.Constraint("Equal", 7, 9),
    Sketcher.Constraint("Equal", 11, 13),
    Sketcher.Constraint("Equal", 13, 19),
    Sketcher.Constraint("DistanceX", 16, 2, 16, 1, Q("19 mm")),
    Sketcher.Constraint("Angle", 0, Q("-60 deg")),
    Sketcher.Constraint("Distance", 0, Q("50 mm")),
    Sketcher.Constraint("Distance", 1, Q("10 mm")),
    Sketcher.Constraint("Distance", 4, Q("30 mm")),
    Sketcher.Constraint("Distance", 8, Q("60 mm")),
    Sketcher.Constraint("Distance", 12, Q("40 mm")),
    Sketcher.Constraint("Distance", 20, Q("45 mm")),
    Sketcher.Constraint("DistanceX", 1, 2, 4, 2, Q("2.5 mm")),
    Sketcher.Constraint("DistanceY", 14, 2, -1, 1, Q("37.640998 mm")),
    Sketcher.Constraint("DistanceY", 17, 1, 17, 2, Q("16.731749 mm")),
    Sketcher.Constraint("DistanceY", 14, 2, 12, 2, Q("15.009601 mm")),
    Sketcher.Constraint("DistanceX", 1, 2, -1, 1, Q("53.791651 mm")),
    Sketcher.Constraint("DistanceX", -1, 1, 9, 2, Q("41.291651 mm")),
    Sketcher.Constraint("DistanceX", -1, 1, 12, 2, Q("70.80127 mm")),
    Sketcher.Constraint("DistanceY", 6, 2, 0, 2, Q("30.310889 mm")),
    Sketcher.Constraint("DistanceY", 3, 2, 8, 2, Q("42.009619 mm")),
    Sketcher.Constraint("DistanceY", 12, 2, 8, 2, Q("76.112159 mm")),
])
pocket15 = doc.addObject("PartDesign::Pocket", "Pocket014")
body.addObject(pocket15)
pocket15.Profile = sketch16
pocket15.Type = "ThroughAll"
pocket15.Reversed = True
doc.recompute()

fillet = doc.addObject("PartDesign::Fillet", "Fillet")
body.addObject(fillet)
fillet.Base = (pocket15, edges_at(pocket15, [
    (-70.131, 1.5, 11.471),
    (-78.792, 1.5, 6.471),
    (-53.792, 1.5, -36.83),
    (-45.131, 1.5, -31.83),
    (2.811, 1.5, 65.131),
    (-2.189, 1.5, 73.792),
    (-41.16, 1.5, 51.292),
    (-36.16, 1.5, 42.631),
    (75.801, 1.5, -31.292),
    (70.801, 1.5, -22.631),
    (36.16, 1.5, -42.631),
    (41.16, 1.5, -51.292),
    (71.292, 1.5, 6.519),
    (41.292, 1.5, 58.481),
    (32.631, 1.5, 53.481),
    (62.631, 1.5, 1.519),
    (-42.631, 1.5, -36.16),
    (-51.292, 1.5, -41.16),
    (-36.292, 1.5, -67.141),
    (-27.631, 1.5, -62.141),
]))
fillet.Radius = 3

doc.recompute()
